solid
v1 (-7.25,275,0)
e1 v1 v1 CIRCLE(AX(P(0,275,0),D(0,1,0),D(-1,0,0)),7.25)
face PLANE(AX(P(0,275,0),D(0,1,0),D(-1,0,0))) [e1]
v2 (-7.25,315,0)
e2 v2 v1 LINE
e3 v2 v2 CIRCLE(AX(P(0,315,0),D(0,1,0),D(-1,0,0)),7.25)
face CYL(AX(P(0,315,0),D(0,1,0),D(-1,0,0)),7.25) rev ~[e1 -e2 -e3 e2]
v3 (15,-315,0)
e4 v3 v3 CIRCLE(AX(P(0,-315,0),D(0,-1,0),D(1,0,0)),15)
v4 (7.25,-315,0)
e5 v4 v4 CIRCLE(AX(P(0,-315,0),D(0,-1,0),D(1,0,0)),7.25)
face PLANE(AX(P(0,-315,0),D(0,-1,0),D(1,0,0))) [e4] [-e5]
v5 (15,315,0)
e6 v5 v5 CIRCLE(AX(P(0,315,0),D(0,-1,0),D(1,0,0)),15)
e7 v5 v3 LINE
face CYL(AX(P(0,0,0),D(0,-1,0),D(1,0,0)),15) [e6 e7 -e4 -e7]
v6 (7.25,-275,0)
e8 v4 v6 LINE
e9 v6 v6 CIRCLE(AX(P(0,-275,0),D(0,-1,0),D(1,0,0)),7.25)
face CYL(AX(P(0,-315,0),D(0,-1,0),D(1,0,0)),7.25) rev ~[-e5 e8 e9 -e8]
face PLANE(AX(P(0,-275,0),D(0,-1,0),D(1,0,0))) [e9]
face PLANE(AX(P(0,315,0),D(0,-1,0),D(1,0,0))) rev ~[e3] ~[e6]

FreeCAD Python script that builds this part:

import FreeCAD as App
import Part
import Sketcher

doc = App.newDocument("Part")
body = doc.addObject("PartDesign::Body", "Body")

# Sketch on XZ plane
sketch1 = body.newObject("Sketcher::SketchObject", "Sketch")
sketch1.AttachmentSupport = (doc.getObject("XZ_Plane"), [""])
sketch1.MapMode = "FlatFace"
sketch1.addGeometry(Part.Circle(App.Vector(0, 0, 0), App.Vector(0, 0, 1), 15), False)
sketch1.addConstraint(Sketcher.Constraint("Coincident", 0, 3, -1, 1))
sketch1.addConstraint(Sketcher.Constraint("Diameter", 0, 30.0))
pad1 = body.newObject("PartDesign::Pad", "Pad")
pad1.Profile = sketch1
pad1.Length = 630
pad1.Midplane = True

# Sketch on XZ plane
sketch2 = body.newObject("Sketcher::SketchObject", "Sketch001")
sketch2.AttachmentSupport = (doc.getObject("XZ_Plane"), [""])
sketch2.MapMode = "FlatFace"
sketch2.AttachmentOffset = App.Placement(App.Vector(0, 0, 315), App.Rotation())
sketch2.addGeometry(Part.Circle(App.Vector(0, 0, 0), App.Vector(0, 0, 1), 7), False)
sketch2.addConstraint(Sketcher.Constraint("Coincident", 0, 3, -1, 1))
sketch2.addConstraint(Sketcher.Constraint("Diameter", 0, 14.5))
pocket1 = body.newObject("PartDesign::Pocket", "Pocket")
pocket1.Profile = sketch2
pocket1.Length = 40

# Sketch on XZ plane
sketch3 = body.newObject("Sketcher::SketchObject", "Sketch002")
sketch3.AttachmentSupport = (doc.getObject("XZ_Plane"), [""])
sketch3.MapMode = "FlatFace"
sketch3.AttachmentOffset = App.Placement(App.Vector(0, 0, -315), App.Rotation())
sketch3.addGeometry(Part.Circle(App.Vector(0, 0, 0), App.Vector(0, 0, 1), 7), False)
sketch3.addConstraint(Sketcher.Constraint("Coincident", 0, 3, -1, 1))
sketch3.addConstraint(Sketcher.Constraint("Diameter", 0, 14.5))
pocket2 = body.newObject("PartDesign::Pocket", "Pocket001")
pocket2.Profile = sketch3
pocket2.Length = 40
pocket2.Reversed = True

doc.recompute()
